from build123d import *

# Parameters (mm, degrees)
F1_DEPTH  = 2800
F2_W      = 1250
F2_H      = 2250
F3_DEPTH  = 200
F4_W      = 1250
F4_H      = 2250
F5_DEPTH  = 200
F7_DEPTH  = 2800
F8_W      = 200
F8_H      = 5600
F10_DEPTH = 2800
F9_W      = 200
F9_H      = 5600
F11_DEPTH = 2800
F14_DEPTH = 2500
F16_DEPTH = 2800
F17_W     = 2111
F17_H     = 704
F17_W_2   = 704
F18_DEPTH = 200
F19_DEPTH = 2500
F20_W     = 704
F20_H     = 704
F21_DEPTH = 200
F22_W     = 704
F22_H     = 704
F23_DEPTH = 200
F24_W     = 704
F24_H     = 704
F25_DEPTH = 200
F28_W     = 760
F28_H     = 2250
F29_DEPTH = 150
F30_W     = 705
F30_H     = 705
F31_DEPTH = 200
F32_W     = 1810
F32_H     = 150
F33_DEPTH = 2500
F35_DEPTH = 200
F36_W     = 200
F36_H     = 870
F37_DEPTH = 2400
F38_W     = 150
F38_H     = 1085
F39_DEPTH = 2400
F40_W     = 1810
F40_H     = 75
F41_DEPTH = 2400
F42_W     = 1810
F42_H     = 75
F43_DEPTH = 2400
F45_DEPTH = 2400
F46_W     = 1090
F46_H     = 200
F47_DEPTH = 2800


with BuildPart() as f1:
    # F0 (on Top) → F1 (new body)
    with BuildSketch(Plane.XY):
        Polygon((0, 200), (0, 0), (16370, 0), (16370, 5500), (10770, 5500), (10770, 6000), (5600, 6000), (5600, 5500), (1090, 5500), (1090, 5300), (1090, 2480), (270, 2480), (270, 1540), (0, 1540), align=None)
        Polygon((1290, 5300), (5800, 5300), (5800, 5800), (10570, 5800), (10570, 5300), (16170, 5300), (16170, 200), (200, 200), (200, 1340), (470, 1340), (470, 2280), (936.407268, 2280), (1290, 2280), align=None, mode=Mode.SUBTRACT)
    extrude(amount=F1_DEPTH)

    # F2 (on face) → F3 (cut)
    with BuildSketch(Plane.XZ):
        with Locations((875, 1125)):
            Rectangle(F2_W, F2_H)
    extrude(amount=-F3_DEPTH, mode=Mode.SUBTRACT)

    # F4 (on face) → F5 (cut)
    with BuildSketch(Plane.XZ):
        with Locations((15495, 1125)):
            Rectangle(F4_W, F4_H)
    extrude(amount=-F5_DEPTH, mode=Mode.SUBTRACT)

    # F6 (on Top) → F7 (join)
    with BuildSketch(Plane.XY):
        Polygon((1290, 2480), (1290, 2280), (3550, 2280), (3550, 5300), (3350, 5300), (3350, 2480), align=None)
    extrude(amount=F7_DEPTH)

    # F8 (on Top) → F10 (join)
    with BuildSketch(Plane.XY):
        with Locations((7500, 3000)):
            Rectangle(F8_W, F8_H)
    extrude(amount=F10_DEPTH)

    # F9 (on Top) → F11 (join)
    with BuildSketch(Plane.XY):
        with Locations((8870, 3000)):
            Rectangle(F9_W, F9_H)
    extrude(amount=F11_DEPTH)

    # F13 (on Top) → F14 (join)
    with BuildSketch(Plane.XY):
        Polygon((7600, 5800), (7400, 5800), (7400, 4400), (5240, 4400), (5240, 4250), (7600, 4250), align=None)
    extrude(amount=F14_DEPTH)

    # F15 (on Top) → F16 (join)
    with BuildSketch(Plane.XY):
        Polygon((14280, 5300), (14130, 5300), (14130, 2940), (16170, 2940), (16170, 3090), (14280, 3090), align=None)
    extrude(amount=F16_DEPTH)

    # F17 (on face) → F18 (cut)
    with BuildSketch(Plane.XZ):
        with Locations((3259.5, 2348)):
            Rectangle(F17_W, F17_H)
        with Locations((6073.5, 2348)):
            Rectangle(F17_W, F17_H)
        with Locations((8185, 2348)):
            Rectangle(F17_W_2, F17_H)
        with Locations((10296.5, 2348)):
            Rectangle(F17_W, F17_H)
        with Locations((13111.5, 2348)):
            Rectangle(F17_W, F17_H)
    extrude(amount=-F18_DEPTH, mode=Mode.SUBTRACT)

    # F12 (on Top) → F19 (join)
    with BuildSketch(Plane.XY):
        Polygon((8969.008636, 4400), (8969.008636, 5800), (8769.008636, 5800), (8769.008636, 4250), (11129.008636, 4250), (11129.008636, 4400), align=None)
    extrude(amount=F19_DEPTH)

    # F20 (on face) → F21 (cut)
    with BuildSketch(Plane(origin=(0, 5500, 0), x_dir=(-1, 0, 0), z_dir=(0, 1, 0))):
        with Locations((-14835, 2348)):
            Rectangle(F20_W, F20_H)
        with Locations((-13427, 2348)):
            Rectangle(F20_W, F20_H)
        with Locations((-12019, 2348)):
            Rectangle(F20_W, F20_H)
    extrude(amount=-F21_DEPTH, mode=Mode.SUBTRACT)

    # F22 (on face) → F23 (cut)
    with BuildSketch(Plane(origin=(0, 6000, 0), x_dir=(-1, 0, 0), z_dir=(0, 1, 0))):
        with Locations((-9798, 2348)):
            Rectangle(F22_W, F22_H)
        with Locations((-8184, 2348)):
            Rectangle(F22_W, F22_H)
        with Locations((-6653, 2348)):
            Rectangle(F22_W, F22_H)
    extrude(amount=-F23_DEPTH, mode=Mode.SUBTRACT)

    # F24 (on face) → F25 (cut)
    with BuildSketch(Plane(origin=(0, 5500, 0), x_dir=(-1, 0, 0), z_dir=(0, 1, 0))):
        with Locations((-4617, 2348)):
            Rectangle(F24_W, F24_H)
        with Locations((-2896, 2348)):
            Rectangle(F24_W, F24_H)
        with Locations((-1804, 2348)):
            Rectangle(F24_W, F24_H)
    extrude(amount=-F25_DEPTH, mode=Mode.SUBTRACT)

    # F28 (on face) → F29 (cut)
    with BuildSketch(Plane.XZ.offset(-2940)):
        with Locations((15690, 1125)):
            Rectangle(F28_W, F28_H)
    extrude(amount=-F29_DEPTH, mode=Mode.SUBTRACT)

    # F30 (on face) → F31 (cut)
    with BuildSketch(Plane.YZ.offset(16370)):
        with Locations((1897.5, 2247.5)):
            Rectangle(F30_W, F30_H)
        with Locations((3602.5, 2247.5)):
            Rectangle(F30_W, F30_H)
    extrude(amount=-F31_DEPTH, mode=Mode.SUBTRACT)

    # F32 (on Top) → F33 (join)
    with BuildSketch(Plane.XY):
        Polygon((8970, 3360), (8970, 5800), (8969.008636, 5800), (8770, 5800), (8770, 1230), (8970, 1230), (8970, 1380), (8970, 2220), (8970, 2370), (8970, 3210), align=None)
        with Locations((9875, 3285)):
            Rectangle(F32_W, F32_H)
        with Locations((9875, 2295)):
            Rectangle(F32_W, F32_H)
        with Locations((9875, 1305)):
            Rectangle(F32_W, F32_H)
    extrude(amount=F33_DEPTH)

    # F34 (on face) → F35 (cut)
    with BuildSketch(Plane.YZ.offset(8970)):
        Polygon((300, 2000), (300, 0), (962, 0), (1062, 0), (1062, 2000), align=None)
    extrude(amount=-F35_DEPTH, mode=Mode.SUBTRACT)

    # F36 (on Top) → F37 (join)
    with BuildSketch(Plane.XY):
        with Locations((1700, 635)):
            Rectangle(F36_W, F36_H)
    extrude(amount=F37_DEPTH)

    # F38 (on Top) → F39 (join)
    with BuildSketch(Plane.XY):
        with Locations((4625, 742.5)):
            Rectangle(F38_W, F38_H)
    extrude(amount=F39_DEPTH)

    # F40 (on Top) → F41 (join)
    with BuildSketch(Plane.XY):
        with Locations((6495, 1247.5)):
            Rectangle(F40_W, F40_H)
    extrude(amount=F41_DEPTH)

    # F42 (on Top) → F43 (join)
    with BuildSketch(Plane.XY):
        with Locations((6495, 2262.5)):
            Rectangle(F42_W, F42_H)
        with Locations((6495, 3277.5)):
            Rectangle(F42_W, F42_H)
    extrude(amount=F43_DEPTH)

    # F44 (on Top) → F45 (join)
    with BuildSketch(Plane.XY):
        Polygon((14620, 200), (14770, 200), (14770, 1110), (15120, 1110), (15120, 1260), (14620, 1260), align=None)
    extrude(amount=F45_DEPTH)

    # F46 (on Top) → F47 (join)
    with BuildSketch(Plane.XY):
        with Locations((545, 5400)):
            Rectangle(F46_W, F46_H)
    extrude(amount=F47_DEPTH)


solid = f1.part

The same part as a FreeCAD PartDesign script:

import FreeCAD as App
import Part
import Sketcher

doc = App.newDocument("Part")
body = doc.addObject("PartDesign::Body", "Body")

sketch1 = body.newObject("Sketcher::SketchObject", "Sketch")
sketch1.AttachmentSupport = (doc.getObject("XY_Plane"), [""])
sketch1.MapMode = "FlatFace"
sketch1.addGeometry([
    Part.LineSegment(App.Vector(0, 0, 0), App.Vector(16370, 0, 0)),
    Part.LineSegment(App.Vector(16370, 0, 0), App.Vector(16370, 5500, 0)),
    Part.LineSegment(App.Vector(16370, 5500, 0), App.Vector(10770, 5500, 0)),
    Part.LineSegment(App.Vector(10770, 5500, 0), App.Vector(10770, 6000, 0)),
    Part.LineSegment(App.Vector(10770, 6000, 0), App.Vector(5600, 6000, 0)),
    Part.LineSegment(App.Vector(5600, 6000, 0), App.Vector(5600, 5500, 0)),
    Part.LineSegment(App.Vector(5600, 5500, 0), App.Vector(1090, 5500, 0)),
    Part.LineSegment(App.Vector(1090, 5500, 0), App.Vector(1090, 2480, 0)),
    Part.LineSegment(App.Vector(1090, 2480, 0), App.Vector(270, 2480, 0)),
    Part.LineSegment(App.Vector(270, 2480, 0), App.Vector(270, 1540, 0)),
    Part.LineSegment(App.Vector(270, 1540, 0), App.Vector(0, 1540, 0)),
    Part.LineSegment(App.Vector(0, 1540, 0), App.Vector(0, 0, 0)),
    Part.LineSegment(App.Vector(1290, 2280, 0), App.Vector(1290, 5300, 0)),
    Part.LineSegment(App.Vector(1290, 5300, 0), App.Vector(5800, 5300, 0)),
    Part.LineSegment(App.Vector(5800, 5300, 0), App.Vector(5800, 5800, 0)),
    Part.LineSegment(App.Vector(5800, 5800, 0), App.Vector(10570, 5800, 0)),
    Part.LineSegment(App.Vector(10570, 5800, 0), App.Vector(10570, 5300, 0)),
    Part.LineSegment(App.Vector(10570, 5300, 0), App.Vector(16170, 5300, 0)),
    Part.LineSegment(App.Vector(16170, 5300, 0), App.Vector(16170, 200, 0)),
    Part.LineSegment(App.Vector(16170, 200, 0), App.Vector(200, 200, 0)),
    Part.LineSegment(App.Vector(200, 200, 0), App.Vector(200, 1340, 0)),
    Part.LineSegment(App.Vector(200, 1340, 0), App.Vector(470, 1340, 0)),
    Part.LineSegment(App.Vector(470, 1340, 0), App.Vector(470, 2280, 0)),
    Part.LineSegment(App.Vector(470, 2280, 0), App.Vector(1290, 2280, 0)),
], False)
sketch1.addConstraint([
    Sketcher.Constraint("Coincident", 0, 2, 1, 1),
    Sketcher.Constraint("Coincident", 1, 2, 2, 1),
    Sketcher.Constraint("Coincident", 2, 2, 3, 1),
    Sketcher.Constraint("Coincident", 3, 2, 4, 1),
    Sketcher.Constraint("Coincident", 4, 2, 5, 1),
    Sketcher.Constraint("Coincident", 5, 2, 6, 1),
    Sketcher.Constraint("Coincident", 6, 2, 7, 1),
    Sketcher.Constraint("Coincident", 7, 2, 8, 1),
    Sketcher.Constraint("Coincident", 8, 2, 9, 1),
    Sketcher.Constraint("Coincident", 9, 2, 10, 1),
    Sketcher.Constraint("Coincident", 10, 2, 11, 1),
    Sketcher.Constraint("Coincident", 11, 2, 0, 1),
    Sketcher.Constraint("Coincident", 12, 2, 13, 1),
    Sketcher.Constraint("Coincident", 13, 2, 14, 1),
    Sketcher.Constraint("Coincident", 14, 2, 15, 1),
    Sketcher.Constraint("Coincident", 15, 2, 16, 1),
    Sketcher.Constraint("Coincident", 16, 2, 17, 1),
    Sketcher.Constraint("Coincident", 17, 2, 18, 1),
    Sketcher.Constraint("Coincident", 18, 2, 19, 1),
    Sketcher.Constraint("Coincident", 19, 2, 20, 1),
    Sketcher.Constraint("Coincident", 20, 2, 21, 1),
    Sketcher.Constraint("Coincident", 21, 2, 22, 1),
    Sketcher.Constraint("Coincident", 22, 2, 23, 1),
    Sketcher.Constraint("Coincident", 23, 2, 12, 1),
    Sketcher.Constraint("Horizontal", 0),
    Sketcher.Constraint("Vertical", 1),
    Sketcher.Constraint("Horizontal", 2),
    Sketcher.Constraint("Vertical", 3),
    Sketcher.Constraint("Horizontal", 4),
    Sketcher.Constraint("Vertical", 5),
    Sketcher.Constraint("Horizontal", 6),
    Sketcher.Constraint("Vertical", 7),
    Sketcher.Constraint("Horizontal", 8),
    Sketcher.Constraint("Vertical", 9),
    Sketcher.Constraint("Horizontal", 10),
    Sketcher.Constraint("Vertical", 11),
    Sketcher.Constraint("Vertical", 12),
    Sketcher.Constraint("Horizontal", 13),
    Sketcher.Constraint("Vertical", 14),
    Sketcher.Constraint("Horizontal", 15),
    Sketcher.Constraint("Vertical", 16),
    Sketcher.Constraint("Horizontal", 17),
    Sketcher.Constraint("Vertical", 18),
    Sketcher.Constraint("Horizontal", 19),
    Sketcher.Constraint("Vertical", 20),
    Sketcher.Constraint("Horizontal", 21),
    Sketcher.Constraint("Vertical", 22),
    Sketcher.Constraint("Horizontal", 23),
    Sketcher.Constraint("Coincident", 11, 2, -1, 1),
    Sketcher.Constraint("Horizontal", 2, 2, 5, 2),
    Sketcher.Constraint("Horizontal", 13, 2, 16, 2),
    Sketcher.Constraint("Equal", 6, 13),
    Sketcher.Constraint("Equal", 2, 17),
    Sketcher.Constraint("Equal", 10, 21),
    Sketcher.Constraint("Equal", 8, 23),
    Sketcher.Constraint("Equal", 7, 12),
    Sketcher.Constraint("Equal", 5, 14),
    Sketcher.Constraint("Equal", 9, 22),
    Sketcher.Constraint("DistanceX", 0, 1, 0, 2, 16370.0),
    Sketcher.Constraint("DistanceX", 2, 2, 2, 1, 5600.0),
    Sketcher.Constraint("DistanceX", 4, 2, 4, 1, 5170.0),
    Sketcher.Constraint("DistanceX", 6, 2, 6, 1, 4510.0),
    Sketcher.Constraint("DistanceX", 8, 2, 8, 1, 820.0),
    Sketcher.Constraint("DistanceX", 15, 1, 15, 2, 4770.0),
    Sketcher.Constraint("DistanceY", 1, 1, 1, 2, 5500.0),
    Sketcher.Constraint("DistanceY", 3, 1, 3, 2, 500.0),
    Sketcher.Constraint("DistanceY", 7, 2, 7, 1, 3020.0),
    Sketcher.Constraint("DistanceY", 9, 2, 9, 1, 940.0),
    Sketcher.Constraint("DistanceY", 18, 2, 18, 1, 5100.0),
    Sketcher.Constraint("DistanceX", -1, 1, 12, 2, 1290.0),
    Sketcher.Constraint("DistanceY", -1, 1, 12, 2, 5300.0),
])
pad1 = body.newObject("PartDesign::Pad", "Pad")
pad1.Profile = sketch1
pad1.Length = 2800

sketch2 = body.newObject("Sketcher::SketchObject", "Sketch001")
sketch2.AttachmentSupport = (doc.getObject("XZ_Plane"), [""])
sketch2.MapMode = "FlatFace"
sketch2.addGeometry([
    Part.LineSegment(App.Vector(250, 2250, 0), App.Vector(250, 0, 0)),
    Part.LineSegment(App.Vector(250, 0, 0), App.Vector(1500, 0, 0)),
    Part.LineSegment(App.Vector(1500, 0, 0), App.Vector(1500, 2250, 0)),
    Part.LineSegment(App.Vector(1500, 2250, 0), App.Vector(250, 2250, 0)),
], False)
sketch2.addConstraint([
    Sketcher.Constraint("Coincident", 0, 2, 1, 1),
    Sketcher.Constraint("Coincident", 1, 2, 2, 1),
    Sketcher.Constraint("Coincident", 2, 2, 3, 1),
    Sketcher.Constraint("Coincident", 3, 2, 0, 1),
    Sketcher.Constraint("Vertical", 0),
    Sketcher.Constraint("Horizontal", 1),
    Sketcher.Constraint("Vertical", 2),
    Sketcher.Constraint("Horizontal", 3),
    Sketcher.Constraint("PointOnObject", 0, 2, -1),
    Sketcher.Constraint("DistanceX", 1, 1, 1, 2, 1250.0),
    Sketcher.Constraint("DistanceY", 0, 2, 0, 1, 2250.0),
    Sketcher.Constraint("DistanceX", -1, 1, 0, 2, 250.0),
])
pocket1 = body.newObject("PartDesign::Pocket", "Pocket")
pocket1.Profile = sketch2
pocket1.Length = 200

sketch3 = body.newObject("Sketcher::SketchObject", "Sketch002")
sketch3.AttachmentSupport = (doc.getObject("XZ_Plane"), [""])
sketch3.MapMode = "FlatFace"
sketch3.addGeometry([
    Part.LineSegment(App.Vector(14870, 2250, 0), App.Vector(14870, 0, 0)),
    Part.LineSegment(App.Vector(14870, 0, 0), App.Vector(16120, 0, 0)),
    Part.LineSegment(App.Vector(16120, 0, 0), App.Vector(16120, 2250, 0)),
    Part.LineSegment(App.Vector(16120, 2250, 0), App.Vector(14870, 2250, 0)),
], False)
sketch3.addConstraint([
    Sketcher.Constraint("Coincident", 0, 2, 1, 1),
    Sketcher.Constraint("Coincident", 1, 2, 2, 1),
    Sketcher.Constraint("Coincident", 2, 2, 3, 1),
    Sketcher.Constraint("Coincident", 3, 2, 0, 1),
    Sketcher.Constraint("Vertical", 0),
    Sketcher.Constraint("Horizontal", 1),
    Sketcher.Constraint("Vertical", 2),
    Sketcher.Constraint("Horizontal", 3),
    Sketcher.Constraint("PointOnObject", 0, 2, -1),
    Sketcher.Constraint("DistanceX", 1, 1, 1, 2, 1250.0),
    Sketcher.Constraint("DistanceY", 0, 2, 0, 1, 2250.0),
    Sketcher.Constraint("DistanceX", -1, 1, 0, 2, 14870.0),
])
pocket2 = body.newObject("PartDesign::Pocket", "Pocket001")
pocket2.Profile = sketch3
pocket2.Length = 200

sketch4 = body.newObject("Sketcher::SketchObject", "Sketch003")
sketch4.AttachmentSupport = (doc.getObject("XY_Plane"), [""])
sketch4.MapMode = "FlatFace"
sketch4.addGeometry([
    Part.LineSegment(App.Vector(1290, 2480, 0), App.Vector(1290, 2280, 0)),
    Part.LineSegment(App.Vector(1290, 2280, 0), App.Vector(3550, 2280, 0)),
    Part.LineSegment(App.Vector(3550, 2280, 0), App.Vector(3550, 5300, 0)),
    Part.LineSegment(App.Vector(3550, 5300, 0), App.Vector(3350, 5300, 0)),
    Part.LineSegment(App.Vector(3350, 5300, 0), App.Vector(3350, 2480, 0)),
    Part.LineSegment(App.Vector(3350, 2480, 0), App.Vector(1290, 2480, 0)),
], False)
sketch4.addConstraint([
    Sketcher.Constraint("Coincident", 0, 2, 1, 1),
    Sketcher.Constraint("Coincident", 1, 2, 2, 1),
    Sketcher.Constraint("Coincident", 2, 2, 3, 1),
    Sketcher.Constraint("Coincident", 3, 2, 4, 1),
    Sketcher.Constraint("Coincident", 4, 2, 5, 1),
    Sketcher.Constraint("Coincident", 5, 2, 0, 1),
    Sketcher.Constraint("Vertical", 0),
    Sketcher.Constraint("Horizontal", 1),
    Sketcher.Constraint("Vertical", 2),
    Sketcher.Constraint("Horizontal", 3),
    Sketcher.Constraint("Vertical", 4),
    Sketcher.Constraint("Horizontal", 5),
    Sketcher.Constraint("Equal", 3, 0),
    Sketcher.Constraint("DistanceX", 1, 1, 1, 2, 2260.0),
    Sketcher.Constraint("DistanceX", 3, 2, 3, 1, 200.0),
    Sketcher.Constraint("DistanceY", 2, 1, 2, 2, 3020.0),
    Sketcher.Constraint("DistanceX", -1, 1, 0, 2, 1290.0),
    Sketcher.Constraint("DistanceY", -1, 1, 0, 2, 2280.0),
])
pad2 = body.newObject("PartDesign::Pad", "Pad001")
pad2.Profile = sketch4
pad2.Length = 2800

sketch5 = body.newObject("Sketcher::SketchObject", "Sketch004")
sketch5.AttachmentSupport = (doc.getObject("XY_Plane"), [""])
sketch5.MapMode = "FlatFace"
sketch5.addGeometry([
    Part.LineSegment(App.Vector(7400, 5800, 0), App.Vector(7400, 200, 0)),
    Part.LineSegment(App.Vector(7400, 200, 0), App.Vector(7600, 200, 0)),
    Part.LineSegment(App.Vector(7600, 200, 0), App.Vector(7600, 5800, 0)),
    Part.LineSegment(App.Vector(7600, 5800, 0), App.Vector(7400, 5800, 0)),
], False)
sketch5.addConstraint([
    Sketcher.Constraint("Coincident", 0, 2, 1, 1),
    Sketcher.Constraint("Coincident", 1, 2, 2, 1),
    Sketcher.Constraint("Coincident", 2, 2, 3, 1),
    Sketcher.Constraint("Coincident", 3, 2, 0, 1),
    Sketcher.Constraint("Vertical", 0),
    Sketcher.Constraint("Horizontal", 1),
    Sketcher.Constraint("Vertical", 2),
    Sketcher.Constraint("Horizontal", 3),
    Sketcher.Constraint("DistanceX", 1, 1, 1, 2, 200.0),
    Sketcher.Constraint("DistanceY", 0, 2, 0, 1, 5600.0),
    Sketcher.Constraint("DistanceX", -1, 1, 0, 2, 7400.0),
    Sketcher.Constraint("DistanceY", -1, 1, 0, 2, 200.0),
])
pad3 = body.newObject("PartDesign::Pad", "Pad002")
pad3.Profile = sketch5
pad3.Length = 2800

sketch6 = body.newObject("Sketcher::SketchObject", "Sketch005")
sketch6.AttachmentSupport = (doc.getObject("XY_Plane"), [""])
sketch6.MapMode = "FlatFace"
sketch6.addGeometry([
    Part.LineSegment(App.Vector(8770, 5800, 0), App.Vector(8770, 200, 0)),
    Part.LineSegment(App.Vector(8770, 200, 0), App.Vector(8970, 200, 0)),
    Part.LineSegment(App.Vector(8970, 200, 0), App.Vector(8970, 5800, 0)),
    Part.LineSegment(App.Vector(8970, 5800, 0), App.Vector(8770, 5800, 0)),
], False)
sketch6.addConstraint([
    Sketcher.Constraint("Coincident", 0, 2, 1, 1),
    Sketcher.Constraint("Coincident", 1, 2, 2, 1),
    Sketcher.Constraint("Coincident", 2, 2, 3, 1),
    Sketcher.Constraint("Coincident", 3, 2, 0, 1),
    Sketcher.Constraint("Vertical", 0),
    Sketcher.Constraint("Horizontal", 1),
    Sketcher.Constraint("Vertical", 2),
    Sketcher.Constraint("Horizontal", 3),
    Sketcher.Constraint("DistanceX", 1, 1, 1, 2, 200.0),
    Sketcher.Constraint("DistanceY", 0, 2, 0, 1, 5600.0),
    Sketcher.Constraint("DistanceX", -1, 1, 0, 2, 8770.0),
    Sketcher.Constraint("DistanceY", -1, 1, 0, 2, 200.0),
])
pad4 = body.newObject("PartDesign::Pad", "Pad003")
pad4.Profile = sketch6
pad4.Length = 2800

sketch7 = body.newObject("Sketcher::SketchObject", "Sketch006")
sketch7.AttachmentSupport = (doc.getObject("XY_Plane"), [""])
sketch7.MapMode = "FlatFace"
sketch7.addGeometry([
    Part.LineSegment(App.Vector(7600, 5800, 0), App.Vector(7400, 5800, 0)),
    Part.LineSegment(App.Vector(7400, 5800, 0), App.Vector(7400, 4400, 0)),
    Part.LineSegment(App.Vector(7400, 4400, 0), App.Vector(5240, 4400, 0)),
    Part.LineSegment(App.Vector(5240, 4400, 0), App.Vector(5240, 4250, 0)),
    Part.LineSegment(App.Vector(5240, 4250, 0), App.Vector(7600, 4250, 0)),
    Part.LineSegment(App.Vector(7600, 4250, 0), App.Vector(7600, 5800, 0)),
], False)
sketch7.addConstraint([
    Sketcher.Constraint("Coincident", 0, 2, 1, 1),
    Sketcher.Constraint("Coincident", 1, 2, 2, 1),
    Sketcher.Constraint("Coincident", 2, 2, 3, 1),
    Sketcher.Constraint("Coincident", 3, 2, 4, 1),
    Sketcher.Constraint("Coincident", 4, 2, 5, 1),
    Sketcher.Constraint("Coincident", 5, 2, 0, 1),
    Sketcher.Constraint("Horizontal", 0),
    Sketcher.Constraint("Vertical", 1),
    Sketcher.Constraint("Horizontal", 2),
    Sketcher.Constraint("Vertical", 3),
    Sketcher.Constraint("Horizontal", 4),
    Sketcher.Constraint("Vertical", 5),
    Sketcher.Constraint("DistanceX", 0, 2, 0, 1, 200.0),
    Sketcher.Constraint("DistanceX", 2, 2, 2, 1, 2160.0),
    Sketcher.Constraint("DistanceY", 1, 2, 1, 1, 1400.0),
    Sketcher.Constraint("DistanceY", 3, 2, 3, 1, 150.0),
    Sketcher.Constraint("DistanceX", -1, 1, 0, 2, 7400.0),
    Sketcher.Constraint("DistanceY", -1, 1, 0, 2, 5800.0),
])
pad5 = body.newObject("PartDesign::Pad", "Pad004")
pad5.Profile = sketch7
pad5.Length = 2500

sketch8 = body.newObject("Sketcher::SketchObject", "Sketch007")
sketch8.AttachmentSupport = (doc.getObject("XY_Plane"), [""])
sketch8.MapMode = "FlatFace"
sketch8.addGeometry([
    Part.LineSegment(App.Vector(14280, 5300, 0), App.Vector(14130, 5300, 0)),
    Part.LineSegment(App.Vector(14130, 5300, 0), App.Vector(14130, 2940, 0)),
    Part.LineSegment(App.Vector(14130, 2940, 0), App.Vector(16170, 2940, 0)),
    Part.LineSegment(App.Vector(16170, 2940, 0), App.Vector(16170, 3090, 0)),
    Part.LineSegment(App.Vector(16170, 3090, 0), App.Vector(14280, 3090, 0)),
    Part.LineSegment(App.Vector(14280, 3090, 0), App.Vector(14280, 5300, 0)),
], False)
sketch8.addConstraint([
    Sketcher.Constraint("Coincident", 0, 2, 1, 1),
    Sketcher.Constraint("Coincident", 1, 2, 2, 1),
    Sketcher.Constraint("Coincident", 2, 2, 3, 1),
    Sketcher.Constraint("Coincident", 3, 2, 4, 1),
    Sketcher.Constraint("Coincident", 4, 2, 5, 1),
    Sketcher.Constraint("Coincident", 5, 2, 0, 1),
    Sketcher.Constraint("Horizontal", 0),
    Sketcher.Constraint("Vertical", 1),
    Sketcher.Constraint("Horizontal", 2),
    Sketcher.Constraint("Vertical", 3),
    Sketcher.Constraint("Horizontal", 4),
    Sketcher.Constraint("Vertical", 5),
    Sketcher.Constraint("Equal", 0, 3),
    Sketcher.Constraint("DistanceX", 0, 2, 0, 1, 150.0),
    Sketcher.Constraint("DistanceX", 2, 1, 2, 2, 2040.0),
    Sketcher.Constraint("DistanceY", 1, 2, 1, 1, 2360.0),
    Sketcher.Constraint("DistanceX", -1, 1, 0, 2, 14130.0),
    Sketcher.Constraint("DistanceY", -1, 1, 0, 2, 5300.0),
])
pad6 = body.newObject("PartDesign::Pad", "Pad005")
pad6.Profile = sketch8
pad6.Length = 2800

sketch9 = body.newObject("Sketcher::SketchObject", "Sketch008")
sketch9.AttachmentSupport = (doc.getObject("XZ_Plane"), [""])
sketch9.MapMode = "FlatFace"
sketch9.addGeometry([
    Part.LineSegment(App.Vector(2204, 2700, 0), App.Vector(2204, 1996, 0)),
    Part.LineSegment(App.Vector(2204, 1996, 0), App.Vector(4315, 1996, 0)),
    Part.LineSegment(App.Vector(4315, 1996, 0), App.Vector(4315, 2700, 0)),
    Part.LineSegment(App.Vector(4315, 2700, 0), App.Vector(2204, 2700, 0)),
    Part.LineSegment(App.Vector(5018, 2700, 0), App.Vector(5018, 1996, 0)),
    Part.LineSegment(App.Vector(5018, 1996, 0), App.Vector(7129, 1996, 0)),
    Part.LineSegment(App.Vector(7129, 1996, 0), App.Vector(7129, 2700, 0)),
    Part.LineSegment(App.Vector(7129, 2700, 0), App.Vector(5018, 2700, 0)),
    Part.LineSegment(App.Vector(7833, 2700, 0), App.Vector(7833, 1996, 0)),
    Part.LineSegment(App.Vector(7833, 1996, 0), App.Vector(8537, 1996, 0)),
    Part.LineSegment(App.Vector(8537, 1996, 0), App.Vector(8537, 2700, 0)),
    Part.LineSegment(App.Vector(8537, 2700, 0), App.Vector(7833, 2700, 0)),
    Part.LineSegment(App.Vector(9241, 2700, 0), App.Vector(9241, 1996, 0)),
    Part.LineSegment(App.Vector(9241, 1996, 0), App.Vector(11352, 1996, 0)),
    Part.LineSegment(App.Vector(11352, 1996, 0), App.Vector(11352, 2700, 0)),
    Part.LineSegment(App.Vector(11352, 2700, 0), App.Vector(9241, 2700, 0)),
    Part.LineSegment(App.Vector(12056, 2700, 0), App.Vector(12056, 1996, 0)),
    Part.LineSegment(App.Vector(12056, 1996, 0), App.Vector(14167, 1996, 0)),
    Part.LineSegment(App.Vector(14167, 1996, 0), App.Vector(14167, 2700, 0)),
    Part.LineSegment(App.Vector(14167, 2700, 0), App.Vector(12056, 2700, 0)),
], False)
sketch9.addConstraint([
    Sketcher.Constraint("Coincident", 0, 2, 1, 1),
    Sketcher.Constraint("Coincident", 1, 2, 2, 1),
    Sketcher.Constraint("Coincident", 2, 2, 3, 1),
    Sketcher.Constraint("Coincident", 3, 2, 0, 1),
    Sketcher.Constraint("Coincident", 4, 2, 5, 1),
    Sketcher.Constraint("Coincident", 5, 2, 6, 1),
    Sketcher.Constraint("Coincident", 6, 2, 7, 1),
    Sketcher.Constraint("Coincident", 7, 2, 4, 1),
    Sketcher.Constraint("Coincident", 8, 2, 9, 1),
    Sketcher.Constraint("Coincident", 9, 2, 10, 1),
    Sketcher.Constraint("Coincident", 10, 2, 11, 1),
    Sketcher.Constraint("Coincident", 11, 2, 8, 1),
    Sketcher.Constraint("Coincident", 12, 2, 13, 1),
    Sketcher.Constraint("Coincident", 13, 2, 14, 1),
    Sketcher.Constraint("Coincident", 14, 2, 15, 1),
    Sketcher.Constraint("Coincident", 15, 2, 12, 1),
    Sketcher.Constraint("Coincident", 16, 2, 17, 1),
    Sketcher.Constraint("Coincident", 17, 2, 18, 1),
    Sketcher.Constraint("Coincident", 18, 2, 19, 1),
    Sketcher.Constraint("Coincident", 19, 2, 16, 1),
    Sketcher.Constraint("Vertical", 0),
    Sketcher.Constraint("Horizontal", 1),
    Sketcher.Constraint("Vertical", 2),
    Sketcher.Constraint("Horizontal", 3),
    Sketcher.Constraint("Vertical", 4),
    Sketcher.Constraint("Horizontal", 5),
    Sketcher.Constraint("Vertical", 6),
    Sketcher.Constraint("Horizontal", 7),
    Sketcher.Constraint("Vertical", 8),
    Sketcher.Constraint("Horizontal", 9),
    Sketcher.Constraint("Vertical", 10),
    Sketcher.Constraint("Horizontal", 11),
    Sketcher.Constraint("Vertical", 12),
    Sketcher.Constraint("Horizontal", 13),
    Sketcher.Constraint("Vertical", 14),
    Sketcher.Constraint("Horizontal", 15),
    Sketcher.Constraint("Vertical", 16),
    Sketcher.Constraint("Horizontal", 17),
    Sketcher.Constraint("Vertical", 18),
    Sketcher.Constraint("Horizontal", 19),
    Sketcher.Constraint("Horizontal", 1, 2, 4, 2),
    Sketcher.Constraint("Horizontal", 3, 2, 6, 2),
    Sketcher.Constraint("Horizontal", 5, 2, 8, 2),
    Sketcher.Constraint("Horizontal", 7, 2, 10, 2),
    Sketcher.Constraint("Horizontal", 9, 2, 12, 2),
    Sketcher.Constraint("Horizontal", 11, 2, 14, 2),
    Sketcher.Constraint("Horizontal", 13, 2, 16, 2),
    Sketcher.Constraint("Horizontal", 15, 2, 18, 2),
    Sketcher.Constraint("Equal", 3, 5),
    Sketcher.Constraint("Equal", 7, 13),
    Sketcher.Constraint("Equal", 15, 17),
    Sketcher.Constraint("Equal", 11, 0),
    Sketcher.Constraint("DistanceX", 1, 1, 1, 2, 2111.0),
    Sketcher.Constraint("DistanceX", 9, 1, 9, 2, 704.0),
    Sketcher.Constraint("DistanceX", -1, 1, 0, 2, 2204.0),
    Sketcher.Constraint("DistanceY", -1, 1, 0, 2, 1996.0),
    Sketcher.Constraint("DistanceX", -1, 1, 4, 2, 5018.0),
    Sketcher.Constraint("DistanceX", -1, 1, 8, 2, 7833.0),
    Sketcher.Constraint("DistanceX", -1, 1, 12, 2, 9241.0),
    Sketcher.Constraint("DistanceX", -1, 1, 16, 2, 12056.0),
])
pocket3 = body.newObject("PartDesign::Pocket", "Pocket002")
pocket3.Profile = sketch9
pocket3.Length = 200

sketch10 = body.newObject("Sketcher::SketchObject", "Sketch009")
sketch10.AttachmentSupport = (doc.getObject("XY_Plane"), [""])
sketch10.MapMode = "FlatFace"
sketch10.addGeometry([
    Part.LineSegment(App.Vector(8969, 4400, 0), App.Vector(8969, 5800, 0)),
    Part.LineSegment(App.Vector(8969, 5800, 0), App.Vector(8769, 5800, 0)),
    Part.LineSegment(App.Vector(8769, 5800, 0), App.Vector(8769, 4250, 0)),
    Part.LineSegment(App.Vector(8769, 4250, 0), App.Vector(11129, 4250, 0)),
    Part.LineSegment(App.Vector(11129, 4250, 0), App.Vector(11129, 4400, 0)),
    Part.LineSegment(App.Vector(11129, 4400, 0), App.Vector(8969, 4400, 0)),
], False)
sketch10.addConstraint([
    Sketcher.Constraint("Coincident", 0, 2, 1, 1),
    Sketcher.Constraint("Coincident", 1, 2, 2, 1),
    Sketcher.Constraint("Coincident", 2, 2, 3, 1),
    Sketcher.Constraint("Coincident", 3, 2, 4, 1),
    Sketcher.Constraint("Coincident", 4, 2, 5, 1),
    Sketcher.Constraint("Coincident", 5, 2, 0, 1),
    Sketcher.Constraint("Vertical", 0),
    Sketcher.Constraint("Horizontal", 1),
    Sketcher.Constraint("Vertical", 2),
    Sketcher.Constraint("Horizontal", 3),
    Sketcher.Constraint("Vertical", 4),
    Sketcher.Constraint("Horizontal", 5),
    Sketcher.Constraint("DistanceX", 1, 2, 1, 1, 200.0),
    Sketcher.Constraint("DistanceX", 3, 1, 3, 2, 2360.0),
    Sketcher.Constraint("DistanceY", 0, 1, 0, 2, 1400.0),
    Sketcher.Constraint("DistanceY", 2, 2, 2, 1, 1550.0),
    Sketcher.Constraint("DistanceY", -1, 1, 0, 2, 5800.0),
    Sketcher.Constraint("DistanceX", -1, 1, 0, 2, 8969.008636),
])
pad7 = body.newObject("PartDesign::Pad", "Pad006")
pad7.Profile = sketch10
pad7.Length = 2500

sketch11 = body.newObject("Sketcher::SketchObject", "Sketch010")
sketch11.AttachmentSupport = (doc.getObject("XZ_Plane"), [""])
sketch11.MapMode = "FlatFace"
sketch11.AttachmentOffset = App.Placement(App.Vector(0, 0, -5500), App.Rotation())
sketch11.addGeometry([
    Part.LineSegment(App.Vector(15187, 2700, 0), App.Vector(15187, 1996, 0)),
    Part.LineSegment(App.Vector(15187, 1996, 0), App.Vector(14483, 1996, 0)),
    Part.LineSegment(App.Vector(14483, 1996, 0), App.Vector(14483, 2700, 0)),
    Part.LineSegment(App.Vector(14483, 2700, 0), App.Vector(15187, 2700, 0)),
    Part.LineSegment(App.Vector(13779, 2700, 0), App.Vector(13779, 1996, 0)),
    Part.LineSegment(App.Vector(13779, 1996, 0), App.Vector(13075, 1996, 0)),
    Part.LineSegment(App.Vector(13075, 1996, 0), App.Vector(13075, 2700, 0)),
    Part.LineSegment(App.Vector(13075, 2700, 0), App.Vector(13779, 2700, 0)),
    Part.LineSegment(App.Vector(12371, 2700, 0), App.Vector(12371, 1996, 0)),
    Part.LineSegment(App.Vector(12371, 1996, 0), App.Vector(11667, 1996, 0)),
    Part.LineSegment(App.Vector(11667, 1996, 0), App.Vector(11667, 2700, 0)),
    Part.LineSegment(App.Vector(11667, 2700, 0), App.Vector(12371, 2700, 0)),
], False)
sketch11.addConstraint([
    Sketcher.Constraint("Coincident", 0, 2, 1, 1),
    Sketcher.Constraint("Coincident", 1, 2, 2, 1),
    Sketcher.Constraint("Coincident", 2, 2, 3, 1),
    Sketcher.Constraint("Coincident", 3, 2, 0, 1),
    Sketcher.Constraint("Coincident", 4, 2, 5, 1),
    Sketcher.Constraint("Coincident", 5, 2, 6, 1),
    Sketcher.Constraint("Coincident", 6, 2, 7, 1),
    Sketcher.Constraint("Coincident", 7, 2, 4, 1),
    Sketcher.Constraint("Coincident", 8, 2, 9, 1),
    Sketcher.Constraint("Coincident", 9, 2, 10, 1),
    Sketcher.Constraint("Coincident", 10, 2, 11, 1),
    Sketcher.Constraint("Coincident", 11, 2, 8, 1),
    Sketcher.Constraint("Vertical", 0),
    Sketcher.Constraint("Horizontal", 1),
    Sketcher.Constraint("Vertical", 2),
    Sketcher.Constraint("Horizontal", 3),
    Sketcher.Constraint("Vertical", 4),
    Sketcher.Constraint("Horizontal", 5),
    Sketcher.Constraint("Vertical", 6),
    Sketcher.Constraint("Horizontal", 7),
    Sketcher.Constraint("Vertical", 8),
    Sketcher.Constraint("Horizontal", 9),
    Sketcher.Constraint("Vertical", 10),
    Sketcher.Constraint("Horizontal", 11),
    Sketcher.Constraint("Horizontal", 1, 2, 4, 2),
    Sketcher.Constraint("Horizontal", 3, 2, 6, 2),
    Sketcher.Constraint("Horizontal", 5, 2, 8, 2),
    Sketcher.Constraint("Horizontal", 7, 2, 10, 2),
    Sketcher.Constraint("Equal", 3, 5),
    Sketcher.Constraint("Equal", 7, 9),
    Sketcher.Constraint("Equal", 11, 0),
    Sketcher.Constraint("DistanceX", 1, 2, 1, 1, 704.0),
    Sketcher.Constraint("DistanceX", -1, 1, 0, 2, 15187.0),
    Sketcher.Constraint("DistanceY", -1, 1, 0, 2, 1996.0),
    Sketcher.Constraint("DistanceX", -1, 1, 4, 2, 13779.0),
    Sketcher.Constraint("DistanceX", -1, 1, 8, 2, 12371.0),
])
pocket4 = body.newObject("PartDesign::Pocket", "Pocket003")
pocket4.Profile = sketch11
pocket4.Length = 200
pocket4.Reversed = True

sketch12 = body.newObject("Sketcher::SketchObject", "Sketch011")
sketch12.AttachmentSupport = (doc.getObject("XZ_Plane"), [""])
sketch12.MapMode = "FlatFace"
sketch12.AttachmentOffset = App.Placement(App.Vector(0, 0, -6000), App.Rotation())
sketch12.addGeometry([
    Part.LineSegment(App.Vector(10150, 2700, 0), App.Vector(10150, 1996, 0)),
    Part.LineSegment(App.Vector(10150, 1996, 0), App.Vector(9446, 1996, 0)),
    Part.LineSegment(App.Vector(9446, 1996, 0), App.Vector(9446, 2700, 0)),
    Part.LineSegment(App.Vector(9446, 2700, 0), App.Vector(10150, 2700, 0)),
    Part.LineSegment(App.Vector(8536, 2700, 0), App.Vector(8536, 1996, 0)),
    Part.LineSegment(App.Vector(8536, 1996, 0), App.Vector(7832, 1996, 0)),
    Part.LineSegment(App.Vector(7832, 1996, 0), App.Vector(7832, 2700, 0)),
    Part.LineSegment(App.Vector(7832, 2700, 0), App.Vector(8536, 2700, 0)),
    Part.LineSegment(App.Vector(7005, 2700, 0), App.Vector(7005, 1996, 0)),
    Part.LineSegment(App.Vector(7005, 1996, 0), App.Vector(6301, 1996, 0)),
    Part.LineSegment(App.Vector(6301, 1996, 0), App.Vector(6301, 2700, 0)),
    Part.LineSegment(App.Vector(6301, 2700, 0), App.Vector(7005, 2700, 0)),
], False)
sketch12.addConstraint([
    Sketcher.Constraint("Coincident", 0, 2, 1, 1),
    Sketcher.Constraint("Coincident", 1, 2, 2, 1),
    Sketcher.Constraint("Coincident", 2, 2, 3, 1),
    Sketcher.Constraint("Coincident", 3, 2, 0, 1),
    Sketcher.Constraint("Coincident", 4, 2, 5, 1),
    Sketcher.Constraint("Coincident", 5, 2, 6, 1),
    Sketcher.Constraint("Coincident", 6, 2, 7, 1),
    Sketcher.Constraint("Coincident", 7, 2, 4, 1),
    Sketcher.Constraint("Coincident", 8, 2, 9, 1),
    Sketcher.Constraint("Coincident", 9, 2, 10, 1),
    Sketcher.Constraint("Coincident", 10, 2, 11, 1),
    Sketcher.Constraint("Coincident", 11, 2, 8, 1),
    Sketcher.Constraint("Vertical", 0),
    Sketcher.Constraint("Horizontal", 1),
    Sketcher.Constraint("Vertical", 2),
    Sketcher.Constraint("Horizontal", 3),
    Sketcher.Constraint("Vertical", 4),
    Sketcher.Constraint("Horizontal", 5),
    Sketcher.Constraint("Vertical", 6),
    Sketcher.Constraint("Horizontal", 7),
    Sketcher.Constraint("Vertical", 8),
    Sketcher.Constraint("Horizontal", 9),
    Sketcher.Constraint("Vertical", 10),
    Sketcher.Constraint("Horizontal", 11),
    Sketcher.Constraint("Horizontal", 1, 2, 4, 2),
    Sketcher.Constraint("Horizontal", 3, 2, 6, 2),
    Sketcher.Constraint("Horizontal", 5, 2, 8, 2),
    Sketcher.Constraint("Horizontal", 7, 2, 10, 2),
    Sketcher.Constraint("Equal", 3, 5),
    Sketcher.Constraint("Equal", 7, 9),
    Sketcher.Constraint("Equal", 11, 0),
    Sketcher.Constraint("DistanceX", 1, 2, 1, 1, 704.0),
    Sketcher.Constraint("DistanceX", -1, 1, 0, 2, 10150.0),
    Sketcher.Constraint("DistanceY", -1, 1, 0, 2, 1996.0),
    Sketcher.Constraint("DistanceX", -1, 1, 4, 2, 8536.0),
    Sketcher.Constraint("DistanceX", -1, 1, 8, 2, 7005.0),
])
pocket5 = body.newObject("PartDesign::Pocket", "Pocket004")
pocket5.Profile = sketch12
pocket5.Length = 200
pocket5.Reversed = True

sketch13 = body.newObject("Sketcher::SketchObject", "Sketch012")
sketch13.AttachmentSupport = (doc.getObject("XZ_Plane"), [""])
sketch13.MapMode = "FlatFace"
sketch13.AttachmentOffset = App.Placement(App.Vector(0, 0, -5500), App.Rotation())
sketch13.addGeometry([
    Part.LineSegment(App.Vector(4969, 2700, 0), App.Vector(4969, 1996, 0)),
    Part.LineSegment(App.Vector(4969, 1996, 0), App.Vector(4265, 1996, 0)),
    Part.LineSegment(App.Vector(4265, 1996, 0), App.Vector(4265, 2700, 0)),
    Part.LineSegment(App.Vector(4265, 2700, 0), App.Vector(4969, 2700, 0)),
    Part.LineSegment(App.Vector(3248, 2700, 0), App.Vector(3248, 1996, 0)),
    Part.LineSegment(App.Vector(3248, 1996, 0), App.Vector(2544, 1996, 0)),
    Part.LineSegment(App.Vector(2544, 1996, 0), App.Vector(2544, 2700, 0)),
    Part.LineSegment(App.Vector(2544, 2700, 0), App.Vector(3248, 2700, 0)),
    Part.LineSegment(App.Vector(2156, 2700, 0), App.Vector(2156, 1996, 0)),
    Part.LineSegment(App.Vector(2156, 1996, 0), App.Vector(1452, 1996, 0)),
    Part.LineSegment(App.Vector(1452, 1996, 0), App.Vector(1452, 2700, 0)),
    Part.LineSegment(App.Vector(1452, 2700, 0), App.Vector(2156, 2700, 0)),
], False)
sketch13.addConstraint([
    Sketcher.Constraint("Coincident", 0, 2, 1, 1),
    Sketcher.Constraint("Coincident", 1, 2, 2, 1),
    Sketcher.Constraint("Coincident", 2, 2, 3, 1),
    Sketcher.Constraint("Coincident", 3, 2, 0, 1),
    Sketcher.Constraint("Coincident", 4, 2, 5, 1),
    Sketcher.Constraint("Coincident", 5, 2, 6, 1),
    Sketcher.Constraint("Coincident", 6, 2, 7, 1),
    Sketcher.Constraint("Coincident", 7, 2, 4, 1),
    Sketcher.Constraint("Coincident", 8, 2, 9, 1),
    Sketcher.Constraint("Coincident", 9, 2, 10, 1),
    Sketcher.Constraint("Coincident", 10, 2, 11, 1),
    Sketcher.Constraint("Coincident", 11, 2, 8, 1),
    Sketcher.Constraint("Vertical", 0),
    Sketcher.Constraint("Horizontal", 1),
    Sketcher.Constraint("Vertical", 2),
    Sketcher.Constraint("Horizontal", 3),
    Sketcher.Constraint("Vertical", 4),
    Sketcher.Constraint("Horizontal", 5),
    Sketcher.Constraint("Vertical", 6),
    Sketcher.Constraint("Horizontal", 7),
    Sketcher.Constraint("Vertical", 8),
    Sketcher.Constraint("Horizontal", 9),
    Sketcher.Constraint("Vertical", 10),
    Sketcher.Constraint("Horizontal", 11),
    Sketcher.Constraint("Horizontal", 1, 2, 4, 2),
    Sketcher.Constraint("Horizontal", 3, 2, 6, 2),
    Sketcher.Constraint("Horizontal", 5, 2, 8, 2),
    Sketcher.Constraint("Horizontal", 7, 2, 10, 2),
    Sketcher.Constraint("Equal", 3, 5),
    Sketcher.Constraint("Equal", 7, 9),
    Sketcher.Constraint("Equal", 11, 0),
    Sketcher.Constraint("DistanceX", 1, 2, 1, 1, 704.0),
    Sketcher.Constraint("DistanceX", -1, 1, 0, 2, 4969.0),
    Sketcher.Constraint("DistanceY", -1, 1, 0, 2, 1996.0),
    Sketcher.Constraint("DistanceX", -1, 1, 4, 2, 3248.0),
    Sketcher.Constraint("DistanceX", -1, 1, 8, 2, 2156.0),
])
pocket6 = body.newObject("PartDesign::Pocket", "Pocket005")
pocket6.Profile = sketch13
pocket6.Length = 200
pocket6.Reversed = True

sketch14 = body.newObject("Sketcher::SketchObject", "Sketch013")
sketch14.AttachmentSupport = (doc.getObject("XZ_Plane"), [""])
sketch14.MapMode = "FlatFace"
sketch14.AttachmentOffset = App.Placement(App.Vector(0, 0, -2940), App.Rotation())
sketch14.addGeometry([
    Part.LineSegment(App.Vector(15310, 2250, 0), App.Vector(15310, 0, 0)),
    Part.LineSegment(App.Vector(15310, 0, 0), App.Vector(16070, 0, 0)),
    Part.LineSegment(App.Vector(16070, 0, 0), App.Vector(16070, 2250, 0)),
    Part.LineSegment(App.Vector(16070, 2250, 0), App.Vector(15310, 2250, 0)),
], False)
sketch14.addConstraint([
    Sketcher.Constraint("Coincident", 0, 2, 1, 1),
    Sketcher.Constraint("Coincident", 1, 2, 2, 1),
    Sketcher.Constraint("Coincident", 2, 2, 3, 1),
    Sketcher.Constraint("Coincident", 3, 2, 0, 1),
    Sketcher.Constraint("Vertical", 0),
    Sketcher.Constraint("Horizontal", 1),
    Sketcher.Constraint("Vertical", 2),
    Sketcher.Constraint("Horizontal", 3),
    Sketcher.Constraint("PointOnObject", 0, 2, -1),
    Sketcher.Constraint("DistanceX", 1, 1, 1, 2, 760.0),
    Sketcher.Constraint("DistanceY", 0, 2, 0, 1, 2250.0),
    Sketcher.Constraint("DistanceX", -1, 1, 0, 2, 15310.0),
])
pocket7 = body.newObject("PartDesign::Pocket", "Pocket006")
pocket7.Profile = sketch14
pocket7.Length = 150

sketch15 = body.newObject("Sketcher::SketchObject", "Sketch014")
sketch15.AttachmentSupport = (doc.getObject("YZ_Plane"), [""])
sketch15.MapMode = "FlatFace"
sketch15.AttachmentOffset = App.Placement(App.Vector(0, 0, 16370), App.Rotation())
sketch15.addGeometry([
    Part.LineSegment(App.Vector(1545, 2600, 0), App.Vector(1545, 1895, 0)),
    Part.LineSegment(App.Vector(1545, 1895, 0), App.Vector(2250, 1895, 0)),
    Part.LineSegment(App.Vector(2250, 1895, 0), App.Vector(2250, 2600, 0)),
    Part.LineSegment(App.Vector(2250, 2600, 0), App.Vector(1545, 2600, 0)),
    Part.LineSegment(App.Vector(3250, 2600, 0), App.Vector(3250, 1895, 0)),
    Part.LineSegment(App.Vector(3250, 1895, 0), App.Vector(3955, 1895, 0)),
    Part.LineSegment(App.Vector(3955, 1895, 0), App.Vector(3955, 2600, 0)),
    Part.LineSegment(App.Vector(3955, 2600, 0), App.Vector(3250, 2600, 0)),
], False)
sketch15.addConstraint([
    Sketcher.Constraint("Coincident", 0, 2, 1, 1),
    Sketcher.Constraint("Coincident", 1, 2, 2, 1),
    Sketcher.Constraint("Coincident", 2, 2, 3, 1),
    Sketcher.Constraint("Coincident", 3, 2, 0, 1),
    Sketcher.Constraint("Coincident", 4, 2, 5, 1),
    Sketcher.Constraint("Coincident", 5, 2, 6, 1),
    Sketcher.Constraint("Coincident", 6, 2, 7, 1),
    Sketcher.Constraint("Coincident", 7, 2, 4, 1),
    Sketcher.Constraint("Vertical", 0),
    Sketcher.Constraint("Horizontal", 1),
    Sketcher.Constraint("Vertical", 2),
    Sketcher.Constraint("Horizontal", 3),
    Sketcher.Constraint("Vertical", 4),
    Sketcher.Constraint("Horizontal", 5),
    Sketcher.Constraint("Vertical", 6),
    Sketcher.Constraint("Horizontal", 7),
    Sketcher.Constraint("Horizontal", 1, 2, 4, 2),
    Sketcher.Constraint("Horizontal", 3, 2, 6, 2),
    Sketcher.Constraint("Equal", 3, 5),
    Sketcher.Constraint("Equal", 7, 0),
    Sketcher.Constraint("DistanceX", 1, 1, 1, 2, 705.0),
    Sketcher.Constraint("DistanceX", -1, 1, 0, 2, 1545.0),
    Sketcher.Constraint("DistanceY", -1, 1, 0, 2, 1895.0),
    Sketcher.Constraint("DistanceX", -1, 1, 4, 2, 3250.0),
])
pocket8 = body.newObject("PartDesign::Pocket", "Pocket007")
pocket8.Profile = sketch15
pocket8.Length = 200

sketch16 = body.newObject("Sketcher::SketchObject", "Sketch015")
sketch16.AttachmentSupport = (doc.getObject("XY_Plane"), [""])
sketch16.MapMode = "FlatFace"
sketch16.addGeometry([
    Part.LineSegment(App.Vector(8970, 5800, 0), App.Vector(8770, 5800, 0)),
    Part.LineSegment(App.Vector(8770, 5800, 0), App.Vector(8770, 1230, 0)),
    Part.LineSegment(App.Vector(8770, 1230, 0), App.Vector(10780, 1230, 0)),
    Part.LineSegment(App.Vector(10780, 1230, 0), App.Vector(10780, 1380, 0)),
    Part.LineSegment(App.Vector(10780, 1380, 0), App.Vector(8970, 1380, 0)),
    Part.LineSegment(App.Vector(8970, 1380, 0), App.Vector(8970, 2220, 0)),
    Part.LineSegment(App.Vector(8970, 2220, 0), App.Vector(10780, 2220, 0)),
    Part.LineSegment(App.Vector(10780, 2220, 0), App.Vector(10780, 2370, 0)),
    Part.LineSegment(App.Vector(10780, 2370, 0), App.Vector(8970, 2370, 0)),
    Part.LineSegment(App.Vector(8970, 2370, 0), App.Vector(8970, 3210, 0)),
    Part.LineSegment(App.Vector(8970, 3210, 0), App.Vector(10780, 3210, 0)),
    Part.LineSegment(App.Vector(10780, 3210, 0), App.Vector(10780, 3360, 0)),
    Part.LineSegment(App.Vector(10780, 3360, 0), App.Vector(8970, 3360, 0)),
    Part.LineSegment(App.Vector(8970, 3360, 0), App.Vector(8970, 5800, 0)),
], False)
sketch16.addConstraint([
    Sketcher.Constraint("Coincident", 0, 2, 1, 1),
    Sketcher.Constraint("Coincident", 1, 2, 2, 1),
    Sketcher.Constraint("Coincident", 2, 2, 3, 1),
    Sketcher.Constraint("Coincident", 3, 2, 4, 1),
    Sketcher.Constraint("Coincident", 4, 2, 5, 1),
    Sketcher.Constraint("Coincident", 5, 2, 6, 1),
    Sketcher.Constraint("Coincident", 6, 2, 7, 1),
    Sketcher.Constraint("Coincident", 7, 2, 8, 1),
    Sketcher.Constraint("Coincident", 8, 2, 9, 1),
    Sketcher.Constraint("Coincident", 9, 2, 10, 1),
    Sketcher.Constraint("Coincident", 10, 2, 11, 1),
    Sketcher.Constraint("Coincident", 11, 2, 12, 1),
    Sketcher.Constraint("Coincident", 12, 2, 13, 1),
    Sketcher.Constraint("Coincident", 13, 2, 0, 1),
    Sketcher.Constraint("Horizontal", 0),
    Sketcher.Constraint("Vertical", 1),
    Sketcher.Constraint("Horizontal", 2),
    Sketcher.Constraint("Vertical", 3),
    Sketcher.Constraint("Horizontal", 4),
    Sketcher.Constraint("Vertical", 5),
    Sketcher.Constraint("Horizontal", 6),
    Sketcher.Constraint("Vertical", 7),
    Sketcher.Constraint("Horizontal", 8),
    Sketcher.Constraint("Vertical", 9),
    Sketcher.Constraint("Horizontal", 10),
    Sketcher.Constraint("Vertical", 11),
    Sketcher.Constraint("Horizontal", 12),
    Sketcher.Constraint("Vertical", 13),
    Sketcher.Constraint("Vertical", 3, 2, 6, 2),
    Sketcher.Constraint("Vertical", 5, 2, 8, 2),
    Sketcher.Constraint("Vertical", 7, 2, 10, 2),
    Sketcher.Constraint("Vertical", 9, 2, 12, 2),
    Sketcher.Constraint("Equal", 3, 7),
    Sketcher.Constraint("Equal", 5, 9),
    Sketcher.Constraint("Equal", 7, 11),
    Sketcher.Constraint("DistanceX", 0, 2, 0, 1, 200.0),
    Sketcher.Constraint("DistanceX", 2, 1, 2, 2, 2010.0),
    Sketcher.Constraint("DistanceY", 1, 2, 1, 1, 4570.0),
    Sketcher.Constraint("DistanceY", 3, 1, 3, 2, 150.0),
    Sketcher.Constraint("DistanceY", 5, 1, 5, 2, 840.0),
    Sketcher.Constraint("DistanceX", -1, 1, 0, 2, 8770.0),
    Sketcher.Constraint("DistanceY", -1, 1, 0, 2, 5800.0),
])
pad8 = body.newObject("PartDesign::Pad", "Pad007")
pad8.Profile = sketch16
pad8.Length = 2500

sketch17 = body.newObject("Sketcher::SketchObject", "Sketch016")
sketch17.AttachmentSupport = (doc.getObject("YZ_Plane"), [""])
sketch17.MapMode = "FlatFace"
sketch17.AttachmentOffset = App.Placement(App.Vector(0, 0, 8970), App.Rotation())
sketch17.addGeometry([
    Part.LineSegment(App.Vector(300, 2000, 0), App.Vector(300, 0, 0)),
    Part.LineSegment(App.Vector(300, 0, 0), App.Vector(1062, 0, 0)),
    Part.LineSegment(App.Vector(1062, 0, 0), App.Vector(1062, 2000, 0)),
    Part.LineSegment(App.Vector(1062, 2000, 0), App.Vector(300, 2000, 0)),
], False)
sketch17.addConstraint([
    Sketcher.Constraint("Coincident", 0, 2, 1, 1),
    Sketcher.Constraint("Coincident", 1, 2, 2, 1),
    Sketcher.Constraint("Coincident", 2, 2, 3, 1),
    Sketcher.Constraint("Coincident", 3, 2, 0, 1),
    Sketcher.Constraint("Vertical", 0),
    Sketcher.Constraint("Horizontal", 1),
    Sketcher.Constraint("Vertical", 2),
    Sketcher.Constraint("Horizontal", 3),
    Sketcher.Constraint("PointOnObject", 0, 2, -1),
    Sketcher.Constraint("DistanceX", 1, 1, 1, 2, 762.0),
    Sketcher.Constraint("DistanceY", 0, 2, 0, 1, 2000.0),
    Sketcher.Constraint("DistanceX", -1, 1, 0, 2, 300.0),
])
pocket9 = body.newObject("PartDesign::Pocket", "Pocket008")
pocket9.Profile = sketch17
pocket9.Length = 200

sketch18 = body.newObject("Sketcher::SketchObject", "Sketch017")
sketch18.AttachmentSupport = (doc.getObject("XY_Plane"), [""])
sketch18.MapMode = "FlatFace"
sketch18.addGeometry([
    Part.LineSegment(App.Vector(1600, 1070, 0), App.Vector(1600, 200, 0)),
    Part.LineSegment(App.Vector(1600, 200, 0), App.Vector(1800, 200, 0)),
    Part.LineSegment(App.Vector(1800, 200, 0), App.Vector(1800, 1070, 0)),
    Part.LineSegment(App.Vector(1800, 1070, 0), App.Vector(1600, 1070, 0)),
], False)
sketch18.addConstraint([
    Sketcher.Constraint("Coincident", 0, 2, 1, 1),
    Sketcher.Constraint("Coincident", 1, 2, 2, 1),
    Sketcher.Constraint("Coincident", 2, 2, 3, 1),
    Sketcher.Constraint("Coincident", 3, 2, 0, 1),
    Sketcher.Constraint("Vertical", 0),
    Sketcher.Constraint("Horizontal", 1),
    Sketcher.Constraint("Vertical", 2),
    Sketcher.Constraint("Horizontal", 3),
    Sketcher.Constraint("DistanceX", 1, 1, 1, 2, 200.0),
    Sketcher.Constraint("DistanceY", 0, 2, 0, 1, 870.0),
    Sketcher.Constraint("DistanceX", -1, 1, 0, 2, 1600.0),
    Sketcher.Constraint("DistanceY", -1, 1, 0, 2, 200.0),
])
pad9 = body.newObject("PartDesign::Pad", "Pad008")
pad9.Profile = sketch18
pad9.Length = 2400

sketch19 = body.newObject("Sketcher::SketchObject", "Sketch018")
sketch19.AttachmentSupport = (doc.getObject("XY_Plane"), [""])
sketch19.MapMode = "FlatFace"
sketch19.addGeometry([
    Part.LineSegment(App.Vector(4550, 1285, 0), App.Vector(4550, 200, 0)),
    Part.LineSegment(App.Vector(4550, 200, 0), App.Vector(4700, 200, 0)),
    Part.LineSegment(App.Vector(4700, 200, 0), App.Vector(4700, 1285, 0)),
    Part.LineSegment(App.Vector(4700, 1285, 0), App.Vector(4550, 1285, 0)),
], False)
sketch19.addConstraint([
    Sketcher.Constraint("Coincident", 0, 2, 1, 1),
    Sketcher.Constraint("Coincident", 1, 2, 2, 1),
    Sketcher.Constraint("Coincident", 2, 2, 3, 1),
    Sketcher.Constraint("Coincident", 3, 2, 0, 1),
    Sketcher.Constraint("Vertical", 0),
    Sketcher.Constraint("Horizontal", 1),
    Sketcher.Constraint("Vertical", 2),
    Sketcher.Constraint("Horizontal", 3),
    Sketcher.Constraint("DistanceX", 1, 1, 1, 2, 150.0),
    Sketcher.Constraint("DistanceY", 0, 2, 0, 1, 1085.0),
    Sketcher.Constraint("DistanceX", -1, 1, 0, 2, 4550.0),
    Sketcher.Constraint("DistanceY", -1, 1, 0, 2, 200.0),
])
pad10 = body.newObject("PartDesign::Pad", "Pad009")
pad10.Profile = sketch19
pad10.Length = 2400

sketch20 = body.newObject("Sketcher::SketchObject", "Sketch019")
sketch20.AttachmentSupport = (doc.getObject("XY_Plane"), [""])
sketch20.MapMode = "FlatFace"
sketch20.addGeometry([
    Part.LineSegment(App.Vector(5590, 1285, 0), App.Vector(5590, 1210, 0)),
    Part.LineSegment(App.Vector(5590, 1210, 0), App.Vector(7400, 1210, 0)),
    Part.LineSegment(App.Vector(7400, 1210, 0), App.Vector(7400, 1285, 0)),
    Part.LineSegment(App.Vector(7400, 1285, 0), App.Vector(5590, 1285, 0)),
], False)
sketch20.addConstraint([
    Sketcher.Constraint("Coincident", 0, 2, 1, 1),
    Sketcher.Constraint("Coincident", 1, 2, 2, 1),
    Sketcher.Constraint("Coincident", 2, 2, 3, 1),
    Sketcher.Constraint("Coincident", 3, 2, 0, 1),
    Sketcher.Constraint("Vertical", 0),
    Sketcher.Constraint("Horizontal", 1),
    Sketcher.Constraint("Vertical", 2),
    Sketcher.Constraint("Horizontal", 3),
    Sketcher.Constraint("DistanceX", 1, 1, 1, 2, 1810.0),
    Sketcher.Constraint("DistanceY", 0, 2, 0, 1, 75.0),
    Sketcher.Constraint("DistanceX", -1, 1, 0, 2, 5590.0),
    Sketcher.Constraint("DistanceY", -1, 1, 0, 2, 1210.0),
])
pad11 = body.newObject("PartDesign::Pad", "Pad010")
pad11.Profile = sketch20
pad11.Length = 2400

sketch21 = body.newObject("Sketcher::SketchObject", "Sketch020")
sketch21.AttachmentSupport = (doc.getObject("XY_Plane"), [""])
sketch21.MapMode = "FlatFace"
sketch21.addGeometry([
    Part.LineSegment(App.Vector(5590, 2300, 0), App.Vector(5590, 2225, 0)),
    Part.LineSegment(App.Vector(5590, 2225, 0), App.Vector(7400, 2225, 0)),
    Part.LineSegment(App.Vector(7400, 2225, 0), App.Vector(7400, 2300, 0)),
    Part.LineSegment(App.Vector(7400, 2300, 0), App.Vector(5590, 2300, 0)),
    Part.LineSegment(App.Vector(5590, 3315, 0), App.Vector(5590, 3240, 0)),
    Part.LineSegment(App.Vector(5590, 3240, 0), App.Vector(7400, 3240, 0)),
    Part.LineSegment(App.Vector(7400, 3240, 0), App.Vector(7400, 3315, 0)),
    Part.LineSegment(App.Vector(7400, 3315, 0), App.Vector(5590, 3315, 0)),
], False)
sketch21.addConstraint([
    Sketcher.Constraint("Coincident", 0, 2, 1, 1),
    Sketcher.Constraint("Coincident", 1, 2, 2, 1),
    Sketcher.Constraint("Coincident", 2, 2, 3, 1),
    Sketcher.Constraint("Coincident", 3, 2, 0, 1),
    Sketcher.Constraint("Coincident", 4, 2, 5, 1),
    Sketcher.Constraint("Coincident", 5, 2, 6, 1),
    Sketcher.Constraint("Coincident", 6, 2, 7, 1),
    Sketcher.Constraint("Coincident", 7, 2, 4, 1),
    Sketcher.Constraint("Vertical", 0),
    Sketcher.Constraint("Horizontal", 1),
    Sketcher.Constraint("Vertical", 2),
    Sketcher.Constraint("Horizontal", 3),
    Sketcher.Constraint("Vertical", 4),
    Sketcher.Constraint("Horizontal", 5),
    Sketcher.Constraint("Vertical", 6),
    Sketcher.Constraint("Horizontal", 7),
    Sketcher.Constraint("Vertical", 3, 2, 4, 2),
    Sketcher.Constraint("Vertical", 2, 2, 5, 2),
    Sketcher.Constraint("Equal", 2, 4),
    Sketcher.Constraint("DistanceX", 1, 1, 1, 2, 1810.0),
    Sketcher.Constraint("DistanceY", 0, 2, 0, 1, 75.0),
    Sketcher.Constraint("DistanceX", -1, 1, 0, 2, 5590.0),
    Sketcher.Constraint("DistanceY", -1, 1, 0, 2, 2225.0),
    Sketcher.Constraint("DistanceY", -1, 1, 4, 2, 3240.0),
])
pad12 = body.newObject("PartDesign::Pad", "Pad011")
pad12.Profile = sketch21
pad12.Length = 2400

sketch22 = body.newObject("Sketcher::SketchObject", "Sketch021")
sketch22.AttachmentSupport = (doc.getObject("XY_Plane"), [""])
sketch22.MapMode = "FlatFace"
sketch22.addGeometry([
    Part.LineSegment(App.Vector(14620, 200, 0), App.Vector(14770, 200, 0)),
    Part.LineSegment(App.Vector(14770, 200, 0), App.Vector(14770, 1110, 0)),
    Part.LineSegment(App.Vector(14770, 1110, 0), App.Vector(15120, 1110, 0)),
    Part.LineSegment(App.Vector(15120, 1110, 0), App.Vector(15120, 1260, 0)),
    Part.LineSegment(App.Vector(15120, 1260, 0), App.Vector(14620, 1260, 0)),
    Part.LineSegment(App.Vector(14620, 1260, 0), App.Vector(14620, 200, 0)),
], False)
sketch22.addConstraint([
    Sketcher.Constraint("Coincident", 0, 2, 1, 1),
    Sketcher.Constraint("Coincident", 1, 2, 2, 1),
    Sketcher.Constraint("Coincident", 2, 2, 3, 1),
    Sketcher.Constraint("Coincident", 3, 2, 4, 1),
    Sketcher.Constraint("Coincident", 4, 2, 5, 1),
    Sketcher.Constraint("Coincident", 5, 2, 0, 1),
    Sketcher.Constraint("Horizontal", 0),
    Sketcher.Constraint("Vertical", 1),
    Sketcher.Constraint("Horizontal", 2),
    Sketcher.Constraint("Vertical", 3),
    Sketcher.Constraint("Horizontal", 4),
    Sketcher.Constraint("Vertical", 5),
    Sketcher.Constraint("Equal", 0, 3),
    Sketcher.Constraint("DistanceX", 0, 1, 0, 2, 150.0),
    Sketcher.Constraint("DistanceX", 2, 1, 2, 2, 350.0),
    Sketcher.Constraint("DistanceY", 1, 1, 1, 2, 910.0),
    Sketcher.Constraint("DistanceX", -1, 1, 0, 2, 14770.0),
    Sketcher.Constraint("DistanceY", -1, 1, 0, 2, 200.0),
])
pad13 = body.newObject("PartDesign::Pad", "Pad012")
pad13.Profile = sketch22
pad13.Length = 2400

sketch23 = body.newObject("Sketcher::SketchObject", "Sketch022")
sketch23.AttachmentSupport = (doc.getObject("XY_Plane"), [""])
sketch23.MapMode = "FlatFace"
sketch23.addGeometry([
    Part.LineSegment(App.Vector(0, 5500, 0), App.Vector(0, 5300, 0)),
    Part.LineSegment(App.Vector(0, 5300, 0), App.Vector(1090, 5300, 0)),
    Part.LineSegment(App.Vector(1090, 5300, 0), App.Vector(1090, 5500, 0)),
    Part.LineSegment(App.Vector(1090, 5500, 0), App.Vector(0, 5500, 0)),
], False)
sketch23.addConstraint([
    Sketcher.Constraint("Coincident", 0, 2, 1, 1),
    Sketcher.Constraint("Coincident", 1, 2, 2, 1),
    Sketcher.Constraint("Coincident", 2, 2, 3, 1),
    Sketcher.Constraint("Coincident", 3, 2, 0, 1),
    Sketcher.Constraint("Vertical", 0),
    Sketcher.Constraint("Horizontal", 1),
    Sketcher.Constraint("Vertical", 2),
    Sketcher.Constraint("Horizontal", 3),
    Sketcher.Constraint("PointOnObject", 0, 2, -2),
    Sketcher.Constraint("DistanceX", 1, 1, 1, 2, 1090.0),
    Sketcher.Constraint("DistanceY", 0, 2, 0, 1, 200.0),
    Sketcher.Constraint("DistanceY", -1, 1, 0, 2, 5300.0),
])
pad14 = body.newObject("PartDesign::Pad", "Pad013")
pad14.Profile = sketch23
pad14.Length = 2800

doc.recompute()
